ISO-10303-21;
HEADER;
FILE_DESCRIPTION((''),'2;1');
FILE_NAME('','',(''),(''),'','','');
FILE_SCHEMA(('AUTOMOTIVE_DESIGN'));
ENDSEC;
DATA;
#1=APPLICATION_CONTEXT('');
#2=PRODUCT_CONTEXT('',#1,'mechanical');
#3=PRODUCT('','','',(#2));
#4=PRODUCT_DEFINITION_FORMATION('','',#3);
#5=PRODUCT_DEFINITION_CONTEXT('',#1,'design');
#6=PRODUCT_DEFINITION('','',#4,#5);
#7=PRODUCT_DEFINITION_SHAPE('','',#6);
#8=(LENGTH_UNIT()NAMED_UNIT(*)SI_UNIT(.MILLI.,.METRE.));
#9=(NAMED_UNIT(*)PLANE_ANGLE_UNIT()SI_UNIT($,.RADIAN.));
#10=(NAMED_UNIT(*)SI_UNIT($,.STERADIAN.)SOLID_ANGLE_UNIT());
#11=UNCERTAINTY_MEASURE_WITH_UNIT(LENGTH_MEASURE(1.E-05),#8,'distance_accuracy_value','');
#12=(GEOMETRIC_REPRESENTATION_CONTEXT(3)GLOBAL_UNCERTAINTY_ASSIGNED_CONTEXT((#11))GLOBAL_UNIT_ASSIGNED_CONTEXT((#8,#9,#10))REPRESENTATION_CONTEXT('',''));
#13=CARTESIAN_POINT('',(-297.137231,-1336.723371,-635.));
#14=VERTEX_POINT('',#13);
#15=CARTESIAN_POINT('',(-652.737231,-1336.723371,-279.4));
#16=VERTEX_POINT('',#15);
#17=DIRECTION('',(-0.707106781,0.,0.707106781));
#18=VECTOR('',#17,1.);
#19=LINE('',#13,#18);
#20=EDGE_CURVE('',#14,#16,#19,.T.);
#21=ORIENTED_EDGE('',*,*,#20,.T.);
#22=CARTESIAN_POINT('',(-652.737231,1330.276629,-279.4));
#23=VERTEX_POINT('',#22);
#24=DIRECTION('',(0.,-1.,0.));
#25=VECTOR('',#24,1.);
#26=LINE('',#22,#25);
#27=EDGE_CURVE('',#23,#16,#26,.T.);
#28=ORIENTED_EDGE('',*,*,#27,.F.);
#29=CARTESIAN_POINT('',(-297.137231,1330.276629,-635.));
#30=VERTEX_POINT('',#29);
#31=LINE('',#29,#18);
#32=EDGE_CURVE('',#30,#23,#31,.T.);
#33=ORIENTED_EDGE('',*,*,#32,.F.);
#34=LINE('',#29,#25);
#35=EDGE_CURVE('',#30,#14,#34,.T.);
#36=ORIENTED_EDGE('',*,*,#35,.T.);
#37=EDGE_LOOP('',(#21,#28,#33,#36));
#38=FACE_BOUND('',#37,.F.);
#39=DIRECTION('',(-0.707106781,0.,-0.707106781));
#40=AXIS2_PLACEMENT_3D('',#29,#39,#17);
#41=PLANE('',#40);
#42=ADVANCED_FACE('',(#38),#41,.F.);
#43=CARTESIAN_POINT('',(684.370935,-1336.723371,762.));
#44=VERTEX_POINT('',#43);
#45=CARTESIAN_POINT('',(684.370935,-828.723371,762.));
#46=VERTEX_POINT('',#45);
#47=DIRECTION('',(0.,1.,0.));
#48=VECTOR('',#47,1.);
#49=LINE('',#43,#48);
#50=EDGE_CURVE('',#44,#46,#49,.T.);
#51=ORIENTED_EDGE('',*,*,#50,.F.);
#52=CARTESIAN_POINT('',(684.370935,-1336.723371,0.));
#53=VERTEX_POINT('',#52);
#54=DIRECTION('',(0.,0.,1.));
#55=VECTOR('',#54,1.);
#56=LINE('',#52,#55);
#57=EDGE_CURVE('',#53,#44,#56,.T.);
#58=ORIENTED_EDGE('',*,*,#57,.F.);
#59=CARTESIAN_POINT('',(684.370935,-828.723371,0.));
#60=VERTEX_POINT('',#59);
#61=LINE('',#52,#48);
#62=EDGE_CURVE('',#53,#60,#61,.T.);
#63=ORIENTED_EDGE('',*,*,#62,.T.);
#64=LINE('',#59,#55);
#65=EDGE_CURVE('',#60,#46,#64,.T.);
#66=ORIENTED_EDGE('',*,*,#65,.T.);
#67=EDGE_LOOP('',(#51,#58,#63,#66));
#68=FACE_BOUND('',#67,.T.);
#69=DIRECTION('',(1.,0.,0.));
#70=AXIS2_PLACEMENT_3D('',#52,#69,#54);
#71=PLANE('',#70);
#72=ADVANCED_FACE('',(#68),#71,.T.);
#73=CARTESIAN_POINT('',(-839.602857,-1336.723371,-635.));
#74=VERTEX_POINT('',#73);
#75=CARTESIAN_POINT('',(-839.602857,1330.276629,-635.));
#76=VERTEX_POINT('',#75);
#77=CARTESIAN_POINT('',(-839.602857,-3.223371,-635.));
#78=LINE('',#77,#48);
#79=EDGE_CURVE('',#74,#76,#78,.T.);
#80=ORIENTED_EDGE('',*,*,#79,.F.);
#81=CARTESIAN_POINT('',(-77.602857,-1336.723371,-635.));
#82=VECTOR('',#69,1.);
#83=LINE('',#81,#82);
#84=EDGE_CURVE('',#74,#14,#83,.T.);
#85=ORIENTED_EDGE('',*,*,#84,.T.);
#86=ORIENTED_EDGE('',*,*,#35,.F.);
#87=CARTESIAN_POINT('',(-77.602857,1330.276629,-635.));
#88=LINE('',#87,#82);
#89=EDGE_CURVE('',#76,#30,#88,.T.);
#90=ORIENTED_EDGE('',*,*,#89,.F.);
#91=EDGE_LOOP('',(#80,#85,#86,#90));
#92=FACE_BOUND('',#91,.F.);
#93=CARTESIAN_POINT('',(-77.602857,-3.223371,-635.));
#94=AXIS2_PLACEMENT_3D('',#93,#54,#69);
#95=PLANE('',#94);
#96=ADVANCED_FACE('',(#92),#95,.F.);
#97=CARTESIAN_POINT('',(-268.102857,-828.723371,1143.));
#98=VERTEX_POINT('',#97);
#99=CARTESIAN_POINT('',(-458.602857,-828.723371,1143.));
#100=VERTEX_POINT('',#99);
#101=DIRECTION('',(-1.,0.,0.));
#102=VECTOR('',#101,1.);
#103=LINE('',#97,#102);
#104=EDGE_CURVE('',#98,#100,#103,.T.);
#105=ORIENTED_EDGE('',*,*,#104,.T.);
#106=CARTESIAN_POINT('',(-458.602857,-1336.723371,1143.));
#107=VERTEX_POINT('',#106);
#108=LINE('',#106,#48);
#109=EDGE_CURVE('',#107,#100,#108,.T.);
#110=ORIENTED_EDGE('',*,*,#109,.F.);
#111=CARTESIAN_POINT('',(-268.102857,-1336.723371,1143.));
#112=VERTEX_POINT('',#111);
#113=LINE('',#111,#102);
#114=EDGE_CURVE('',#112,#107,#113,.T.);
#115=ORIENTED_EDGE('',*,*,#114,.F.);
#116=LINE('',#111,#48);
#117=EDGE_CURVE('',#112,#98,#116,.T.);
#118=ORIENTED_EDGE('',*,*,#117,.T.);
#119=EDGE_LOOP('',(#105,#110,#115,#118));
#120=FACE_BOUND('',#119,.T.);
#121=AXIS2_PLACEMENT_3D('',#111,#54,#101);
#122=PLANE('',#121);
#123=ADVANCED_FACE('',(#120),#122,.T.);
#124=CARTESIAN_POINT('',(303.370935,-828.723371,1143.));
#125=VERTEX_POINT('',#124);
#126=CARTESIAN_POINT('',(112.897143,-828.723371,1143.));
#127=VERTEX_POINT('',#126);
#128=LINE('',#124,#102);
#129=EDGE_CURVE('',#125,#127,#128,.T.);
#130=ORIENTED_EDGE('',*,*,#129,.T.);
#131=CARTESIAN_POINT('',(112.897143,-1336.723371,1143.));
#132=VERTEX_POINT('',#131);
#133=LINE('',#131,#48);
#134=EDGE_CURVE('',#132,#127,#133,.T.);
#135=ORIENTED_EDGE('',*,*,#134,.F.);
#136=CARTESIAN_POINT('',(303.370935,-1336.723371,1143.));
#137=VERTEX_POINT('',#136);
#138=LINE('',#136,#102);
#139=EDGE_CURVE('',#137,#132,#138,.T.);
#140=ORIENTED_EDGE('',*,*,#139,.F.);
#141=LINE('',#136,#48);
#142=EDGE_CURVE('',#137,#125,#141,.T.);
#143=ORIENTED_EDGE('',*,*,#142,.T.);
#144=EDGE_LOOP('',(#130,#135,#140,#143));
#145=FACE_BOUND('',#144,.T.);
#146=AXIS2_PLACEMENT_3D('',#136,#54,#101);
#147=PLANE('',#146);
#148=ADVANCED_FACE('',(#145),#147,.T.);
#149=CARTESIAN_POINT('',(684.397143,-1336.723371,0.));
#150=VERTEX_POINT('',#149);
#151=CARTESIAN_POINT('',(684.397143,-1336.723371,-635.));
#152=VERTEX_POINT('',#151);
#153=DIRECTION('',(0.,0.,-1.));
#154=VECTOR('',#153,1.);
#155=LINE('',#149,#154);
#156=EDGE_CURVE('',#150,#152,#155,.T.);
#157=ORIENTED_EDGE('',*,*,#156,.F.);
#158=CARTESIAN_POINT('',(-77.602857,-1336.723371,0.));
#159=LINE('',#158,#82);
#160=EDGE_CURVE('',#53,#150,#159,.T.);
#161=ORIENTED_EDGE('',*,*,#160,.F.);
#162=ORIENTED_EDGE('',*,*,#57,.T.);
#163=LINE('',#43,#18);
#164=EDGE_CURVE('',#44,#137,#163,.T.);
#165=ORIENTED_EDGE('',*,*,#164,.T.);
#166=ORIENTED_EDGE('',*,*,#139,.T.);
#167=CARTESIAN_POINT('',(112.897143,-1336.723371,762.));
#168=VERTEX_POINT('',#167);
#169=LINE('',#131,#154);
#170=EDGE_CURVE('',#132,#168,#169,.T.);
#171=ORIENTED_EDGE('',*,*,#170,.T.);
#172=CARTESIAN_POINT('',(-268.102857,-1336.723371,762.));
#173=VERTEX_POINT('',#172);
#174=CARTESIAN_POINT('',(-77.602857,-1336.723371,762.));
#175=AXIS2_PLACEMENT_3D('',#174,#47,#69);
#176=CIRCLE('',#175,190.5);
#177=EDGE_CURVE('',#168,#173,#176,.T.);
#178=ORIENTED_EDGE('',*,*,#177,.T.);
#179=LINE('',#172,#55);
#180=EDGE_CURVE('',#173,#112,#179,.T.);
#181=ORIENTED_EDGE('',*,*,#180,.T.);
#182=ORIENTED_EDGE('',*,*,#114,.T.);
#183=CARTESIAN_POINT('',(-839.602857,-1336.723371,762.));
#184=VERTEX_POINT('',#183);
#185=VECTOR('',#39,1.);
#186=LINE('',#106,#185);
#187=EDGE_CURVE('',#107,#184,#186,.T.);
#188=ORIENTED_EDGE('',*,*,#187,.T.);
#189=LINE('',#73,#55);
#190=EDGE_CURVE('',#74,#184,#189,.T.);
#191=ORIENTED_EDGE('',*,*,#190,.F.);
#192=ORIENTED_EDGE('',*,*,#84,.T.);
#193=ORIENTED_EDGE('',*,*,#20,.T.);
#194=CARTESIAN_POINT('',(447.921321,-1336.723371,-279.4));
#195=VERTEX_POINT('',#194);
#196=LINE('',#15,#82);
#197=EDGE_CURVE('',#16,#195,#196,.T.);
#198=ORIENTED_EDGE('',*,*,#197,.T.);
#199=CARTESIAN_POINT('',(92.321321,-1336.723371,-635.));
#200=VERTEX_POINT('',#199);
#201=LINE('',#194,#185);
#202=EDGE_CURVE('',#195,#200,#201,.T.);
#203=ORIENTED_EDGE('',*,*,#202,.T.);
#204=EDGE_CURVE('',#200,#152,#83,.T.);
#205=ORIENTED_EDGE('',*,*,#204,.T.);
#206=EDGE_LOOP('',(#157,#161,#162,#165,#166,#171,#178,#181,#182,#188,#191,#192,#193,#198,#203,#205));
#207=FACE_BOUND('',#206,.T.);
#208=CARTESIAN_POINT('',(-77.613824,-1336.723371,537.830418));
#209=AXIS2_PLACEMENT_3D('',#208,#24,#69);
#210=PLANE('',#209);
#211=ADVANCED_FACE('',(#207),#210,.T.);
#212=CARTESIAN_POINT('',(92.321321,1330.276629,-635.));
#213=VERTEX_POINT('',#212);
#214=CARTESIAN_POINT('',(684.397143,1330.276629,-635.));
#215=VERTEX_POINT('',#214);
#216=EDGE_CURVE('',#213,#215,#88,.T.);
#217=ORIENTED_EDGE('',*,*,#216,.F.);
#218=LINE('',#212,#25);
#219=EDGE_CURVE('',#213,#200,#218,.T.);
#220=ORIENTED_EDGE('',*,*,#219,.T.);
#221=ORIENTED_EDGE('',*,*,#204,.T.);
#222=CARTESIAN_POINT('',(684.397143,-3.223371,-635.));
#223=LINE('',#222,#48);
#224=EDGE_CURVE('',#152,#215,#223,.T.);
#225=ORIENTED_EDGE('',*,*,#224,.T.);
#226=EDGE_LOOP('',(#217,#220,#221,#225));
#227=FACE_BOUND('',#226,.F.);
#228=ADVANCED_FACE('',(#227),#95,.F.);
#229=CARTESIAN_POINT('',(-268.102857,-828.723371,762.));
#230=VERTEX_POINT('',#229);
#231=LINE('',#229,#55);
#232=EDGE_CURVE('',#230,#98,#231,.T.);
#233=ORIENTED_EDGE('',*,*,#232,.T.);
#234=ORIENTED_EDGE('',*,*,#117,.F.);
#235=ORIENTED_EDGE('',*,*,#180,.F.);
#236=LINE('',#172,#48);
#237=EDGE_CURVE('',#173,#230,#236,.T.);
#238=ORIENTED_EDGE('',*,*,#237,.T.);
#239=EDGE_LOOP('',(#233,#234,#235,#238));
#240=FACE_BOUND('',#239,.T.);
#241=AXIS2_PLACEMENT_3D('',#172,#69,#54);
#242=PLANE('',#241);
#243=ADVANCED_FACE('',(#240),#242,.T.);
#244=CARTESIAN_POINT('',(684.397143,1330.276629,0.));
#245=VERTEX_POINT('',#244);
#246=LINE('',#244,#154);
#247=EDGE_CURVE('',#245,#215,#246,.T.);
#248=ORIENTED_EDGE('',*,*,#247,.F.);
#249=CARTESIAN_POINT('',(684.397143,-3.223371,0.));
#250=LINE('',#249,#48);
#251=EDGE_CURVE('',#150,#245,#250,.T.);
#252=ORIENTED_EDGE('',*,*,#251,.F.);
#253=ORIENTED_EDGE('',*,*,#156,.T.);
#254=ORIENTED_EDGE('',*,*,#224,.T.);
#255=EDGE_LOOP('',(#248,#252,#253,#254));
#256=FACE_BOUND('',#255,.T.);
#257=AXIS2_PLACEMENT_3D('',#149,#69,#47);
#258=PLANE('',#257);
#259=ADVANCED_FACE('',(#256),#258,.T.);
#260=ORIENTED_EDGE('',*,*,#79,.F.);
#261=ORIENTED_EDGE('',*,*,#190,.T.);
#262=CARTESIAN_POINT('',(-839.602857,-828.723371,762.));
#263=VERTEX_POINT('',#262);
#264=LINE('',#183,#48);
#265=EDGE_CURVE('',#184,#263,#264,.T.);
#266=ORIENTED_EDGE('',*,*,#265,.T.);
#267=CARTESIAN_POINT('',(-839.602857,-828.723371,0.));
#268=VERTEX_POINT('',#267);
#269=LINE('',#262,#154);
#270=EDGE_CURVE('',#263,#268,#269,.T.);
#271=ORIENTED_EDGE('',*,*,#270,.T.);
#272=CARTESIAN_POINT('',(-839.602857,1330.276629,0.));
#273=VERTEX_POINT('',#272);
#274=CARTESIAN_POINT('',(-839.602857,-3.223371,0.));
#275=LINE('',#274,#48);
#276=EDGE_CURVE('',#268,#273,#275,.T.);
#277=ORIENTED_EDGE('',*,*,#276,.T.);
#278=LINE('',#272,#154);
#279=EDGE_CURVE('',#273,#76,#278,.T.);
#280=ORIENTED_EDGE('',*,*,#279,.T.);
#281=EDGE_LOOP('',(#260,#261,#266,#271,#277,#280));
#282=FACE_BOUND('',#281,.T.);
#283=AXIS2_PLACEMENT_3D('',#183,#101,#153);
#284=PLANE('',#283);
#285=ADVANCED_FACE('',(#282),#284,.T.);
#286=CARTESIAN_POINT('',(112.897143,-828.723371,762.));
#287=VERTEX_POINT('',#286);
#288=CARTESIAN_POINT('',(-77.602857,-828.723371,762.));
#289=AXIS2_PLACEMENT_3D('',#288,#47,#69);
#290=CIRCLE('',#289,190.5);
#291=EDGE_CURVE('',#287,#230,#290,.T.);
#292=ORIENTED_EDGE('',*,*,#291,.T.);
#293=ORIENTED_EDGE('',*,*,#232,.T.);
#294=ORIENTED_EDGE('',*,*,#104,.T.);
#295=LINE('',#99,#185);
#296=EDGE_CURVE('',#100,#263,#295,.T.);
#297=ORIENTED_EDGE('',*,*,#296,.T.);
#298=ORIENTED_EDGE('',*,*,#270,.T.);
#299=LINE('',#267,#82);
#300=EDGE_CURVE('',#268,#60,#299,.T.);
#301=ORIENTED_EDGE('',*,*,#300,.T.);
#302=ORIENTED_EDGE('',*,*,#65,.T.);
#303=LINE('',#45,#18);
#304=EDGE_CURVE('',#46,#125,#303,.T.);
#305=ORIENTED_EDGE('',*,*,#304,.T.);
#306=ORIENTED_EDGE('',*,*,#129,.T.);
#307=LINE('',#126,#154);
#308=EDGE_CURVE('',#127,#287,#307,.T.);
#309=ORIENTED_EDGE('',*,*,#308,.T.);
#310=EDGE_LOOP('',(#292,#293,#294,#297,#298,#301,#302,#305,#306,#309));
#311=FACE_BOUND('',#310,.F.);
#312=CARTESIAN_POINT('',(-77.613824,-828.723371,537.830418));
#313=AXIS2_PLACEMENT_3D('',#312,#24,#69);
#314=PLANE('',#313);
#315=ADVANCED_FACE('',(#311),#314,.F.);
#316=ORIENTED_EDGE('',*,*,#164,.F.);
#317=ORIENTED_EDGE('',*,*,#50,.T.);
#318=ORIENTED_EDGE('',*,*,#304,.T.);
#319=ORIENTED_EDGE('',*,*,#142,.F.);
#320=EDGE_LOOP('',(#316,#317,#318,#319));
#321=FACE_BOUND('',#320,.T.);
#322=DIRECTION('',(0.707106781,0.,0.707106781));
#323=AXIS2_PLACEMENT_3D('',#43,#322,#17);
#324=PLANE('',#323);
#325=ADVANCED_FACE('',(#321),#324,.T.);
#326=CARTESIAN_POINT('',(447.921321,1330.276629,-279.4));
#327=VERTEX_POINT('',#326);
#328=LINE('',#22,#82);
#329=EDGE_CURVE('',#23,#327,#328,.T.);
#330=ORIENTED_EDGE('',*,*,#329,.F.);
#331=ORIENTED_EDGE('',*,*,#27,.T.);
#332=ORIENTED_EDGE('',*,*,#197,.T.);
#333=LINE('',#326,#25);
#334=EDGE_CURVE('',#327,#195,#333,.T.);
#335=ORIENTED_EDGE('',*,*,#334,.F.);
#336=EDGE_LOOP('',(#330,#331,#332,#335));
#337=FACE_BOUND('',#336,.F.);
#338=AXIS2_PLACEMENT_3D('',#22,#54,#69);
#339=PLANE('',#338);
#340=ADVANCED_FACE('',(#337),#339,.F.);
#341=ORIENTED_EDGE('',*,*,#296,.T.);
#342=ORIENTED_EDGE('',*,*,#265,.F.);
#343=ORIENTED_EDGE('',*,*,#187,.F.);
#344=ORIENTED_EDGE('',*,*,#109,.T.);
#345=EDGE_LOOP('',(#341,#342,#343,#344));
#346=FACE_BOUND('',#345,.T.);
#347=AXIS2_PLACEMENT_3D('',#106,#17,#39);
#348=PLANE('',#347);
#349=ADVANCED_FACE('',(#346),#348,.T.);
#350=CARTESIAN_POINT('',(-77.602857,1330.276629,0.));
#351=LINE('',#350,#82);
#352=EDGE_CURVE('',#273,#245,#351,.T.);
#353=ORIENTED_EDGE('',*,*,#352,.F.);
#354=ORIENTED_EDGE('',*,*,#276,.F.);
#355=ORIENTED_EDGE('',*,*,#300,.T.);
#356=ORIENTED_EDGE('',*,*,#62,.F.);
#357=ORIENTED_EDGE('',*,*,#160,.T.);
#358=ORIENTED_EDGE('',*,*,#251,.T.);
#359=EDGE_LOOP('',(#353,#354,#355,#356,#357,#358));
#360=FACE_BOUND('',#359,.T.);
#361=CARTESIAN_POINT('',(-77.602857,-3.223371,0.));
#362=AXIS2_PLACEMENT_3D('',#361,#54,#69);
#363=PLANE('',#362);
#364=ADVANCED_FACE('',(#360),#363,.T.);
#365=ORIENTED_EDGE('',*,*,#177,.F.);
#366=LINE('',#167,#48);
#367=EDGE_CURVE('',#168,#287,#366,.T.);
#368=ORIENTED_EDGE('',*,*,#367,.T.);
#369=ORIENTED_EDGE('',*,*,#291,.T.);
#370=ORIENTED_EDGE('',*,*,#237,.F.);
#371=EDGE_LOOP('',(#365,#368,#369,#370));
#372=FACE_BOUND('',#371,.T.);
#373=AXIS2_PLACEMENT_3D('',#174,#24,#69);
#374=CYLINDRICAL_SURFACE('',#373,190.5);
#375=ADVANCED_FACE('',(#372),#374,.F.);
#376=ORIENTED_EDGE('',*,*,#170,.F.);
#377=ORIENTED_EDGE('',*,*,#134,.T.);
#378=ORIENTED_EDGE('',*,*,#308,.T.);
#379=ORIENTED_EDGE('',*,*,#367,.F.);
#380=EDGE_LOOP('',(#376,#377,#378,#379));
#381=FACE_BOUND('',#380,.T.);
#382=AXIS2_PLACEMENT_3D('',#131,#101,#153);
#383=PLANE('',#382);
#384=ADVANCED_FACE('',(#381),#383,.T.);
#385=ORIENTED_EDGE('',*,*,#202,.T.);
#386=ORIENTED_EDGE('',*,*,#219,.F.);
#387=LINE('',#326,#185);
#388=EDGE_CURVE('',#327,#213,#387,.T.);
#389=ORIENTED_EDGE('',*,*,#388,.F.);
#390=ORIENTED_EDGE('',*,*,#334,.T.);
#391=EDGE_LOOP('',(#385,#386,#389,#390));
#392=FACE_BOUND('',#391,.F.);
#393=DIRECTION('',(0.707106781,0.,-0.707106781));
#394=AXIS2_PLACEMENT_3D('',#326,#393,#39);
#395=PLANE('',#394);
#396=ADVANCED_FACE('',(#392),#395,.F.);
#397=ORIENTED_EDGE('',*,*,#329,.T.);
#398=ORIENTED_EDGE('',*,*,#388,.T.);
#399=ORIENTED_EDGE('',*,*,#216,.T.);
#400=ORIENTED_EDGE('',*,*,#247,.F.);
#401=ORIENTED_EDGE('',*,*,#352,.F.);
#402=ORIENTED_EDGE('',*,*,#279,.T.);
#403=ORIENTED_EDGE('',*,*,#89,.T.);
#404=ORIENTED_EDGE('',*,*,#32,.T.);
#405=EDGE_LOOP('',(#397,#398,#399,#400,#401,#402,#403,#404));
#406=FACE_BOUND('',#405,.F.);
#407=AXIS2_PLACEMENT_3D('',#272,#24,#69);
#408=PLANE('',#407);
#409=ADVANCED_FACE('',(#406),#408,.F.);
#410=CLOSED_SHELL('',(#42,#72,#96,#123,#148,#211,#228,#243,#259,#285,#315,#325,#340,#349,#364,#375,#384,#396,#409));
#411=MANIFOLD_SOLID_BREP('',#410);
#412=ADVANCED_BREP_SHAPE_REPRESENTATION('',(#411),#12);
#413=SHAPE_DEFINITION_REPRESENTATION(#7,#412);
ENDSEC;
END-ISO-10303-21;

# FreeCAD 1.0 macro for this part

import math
import FreeCAD as App
import Part
import Sketcher
Q = App.Units.Quantity

doc = App.newDocument("Part")
body = doc.addObject("PartDesign::Body", "Body")

# Sketch on XY plane
sketch1 = body.newObject("Sketcher::SketchObject", "Sketch")
sketch1.AttachmentSupport = (doc.getObject("XY_Plane"), [""])
sketch1.MapMode = "FlatFace"
sketch1.addGeometry([
    Part.LineSegment(App.Vector(-839.602857, 1330.276629, 0), App.Vector(-839.602857, -1336.723371, 0)),
    Part.LineSegment(App.Vector(-839.602857, -1336.723371, 0), App.Vector(684.397143, -1336.723371, 0)),
    Part.LineSegment(App.Vector(684.397143, -1336.723371, 0), App.Vector(684.397143, 1330.276629, 0)),
    Part.LineSegment(App.Vector(684.397143, 1330.276629, 0), App.Vector(-839.602857, 1330.276629, 0)),
], False)
sketch1.addConstraint([
    Sketcher.Constraint("Coincident", 0, 2, 1, 1),
    Sketcher.Constraint("Coincident", 1, 2, 2, 1),
    Sketcher.Constraint("Coincident", 2, 2, 3, 1),
    Sketcher.Constraint("Coincident", 3, 2, 0, 1),
    Sketcher.Constraint("Vertical", 0),
    Sketcher.Constraint("Horizontal", 1),
    Sketcher.Constraint("Vertical", 2),
    Sketcher.Constraint("Horizontal", 3),
    Sketcher.Constraint("DistanceX", 1, 1, 1, 2, Q("60 in")),
    Sketcher.Constraint("DistanceY", 0, 2, 0, 1, Q("105 in")),
    Sketcher.Constraint("DistanceY", 0, 2, -1, 1, Q("1336.723371 mm")),
    Sketcher.Constraint("DistanceX", 0, 2, -1, 1, Q("839.602857 mm")),
])
pad1 = body.newObject("PartDesign::Pad", "Pad")
pad1.Profile = sketch1
pad1.Length = Q("25 in")
pad1.Reversed = True

# Sketch on XZ plane
sketch2 = body.newObject("Sketcher::SketchObject", "Sketch001")
sketch2.AttachmentSupport = (doc.getObject("XZ_Plane"), [""])
sketch2.MapMode = "FlatFace"
sketch2.AttachmentOffset = App.Placement(App.Vector(0, 0, 1336.723371), App.Rotation())
sketch2.addGeometry([
    Part.LineSegment(App.Vector(-839.602857, 762, 0), App.Vector(-839.602857, 0, 0)),  # 0
    Part.LineSegment(App.Vector(-839.602857, 0, 0), App.Vector(684.370935, 0, 0)),  # 1
    Part.LineSegment(App.Vector(684.370935, 0, 0), App.Vector(684.370935, 762, 0)),  # 2
    Part.LineSegment(App.Vector(684.370935, 762, 0), App.Vector(303.370935, 1143, 0)),  # 3
    Part.LineSegment(App.Vector(303.370935, 1143, 0), App.Vector(112.897143, 1143, 0)),  # 4
    Part.LineSegment(App.Vector(112.897143, 1143, 0), App.Vector(112.897143, 762, 0)),  # 5
    Part.ArcOfCircle(Part.Circle(App.Vector(-77.602857, 762, 0), App.Vector(0, 0, 1), 190.5), math.radians(180), math.radians(360)),  # 6
    Part.LineSegment(App.Vector(-268.102857, 762, 0), App.Vector(-268.102857, 1143, 0)),  # 7
    Part.LineSegment(App.Vector(-268.102857, 1143, 0), App.Vector(-458.602857, 1143, 0)),  # 8
    Part.LineSegment(App.Vector(-458.602857, 1143, 0), App.Vector(-839.602857, 762, 0)),  # 9
], False)
sketch2.addConstraint([
    Sketcher.Constraint("Coincident", 0, 2, 1, 1),
    Sketcher.Constraint("Coincident", 1, 2, 2, 1),
    Sketcher.Constraint("Coincident", 2, 2, 3, 1),
    Sketcher.Constraint("Coincident", 3, 2, 4, 1),
    Sketcher.Constraint("Coincident", 4, 2, 5, 1),
    Sketcher.Constraint("Tangent", 5, 2, 6, 2),
    Sketcher.Constraint("Tangent", 6, 1, 7, 1),
    Sketcher.Constraint("Coincident", 7, 2, 8, 1),
    Sketcher.Constraint("Coincident", 8, 2, 9, 1),
    Sketcher.Constraint("Coincident", 9, 2, 0, 1),
    Sketcher.Constraint("Vertical", 0),
    Sketcher.Constraint("Horizontal", 1),
    Sketcher.Constraint("Vertical", 2),
    Sketcher.Constraint("Horizontal", 4),
    Sketcher.Constraint("Vertical", 5),
    Sketcher.Constraint("Vertical", 7),
    Sketcher.Constraint("Horizontal", 8),
    Sketcher.Constraint("PointOnObject", 0, 2, -1),
    Sketcher.Constraint("Perpendicular", 3, 9),
    Sketcher.Constraint("Horizontal", 6, 3, 2, 2),
    Sketcher.Constraint("Horizontal", 4, 2, 7, 2),
    Sketcher.Constraint("Horizontal", 6, 1, 9, 2),
    Sketcher.Constraint("Equal", 3, 9),
    Sketcher.Constraint("Radius", 6, Q("7.5 in")),
    Sketcher.Constraint("DistanceY", 0, 2, 0, 1, Q("30 in")),
    Sketcher.Constraint("DistanceY", 5, 2, 5, 1, Q("15 in")),
    Sketcher.Constraint("DistanceX", 8, 2, 8, 1, Q("7.5 in")),
    Sketcher.Constraint("DistanceX", 1, 1, 1, 2, Q("1523.973792 mm")),
    Sketcher.Constraint("DistanceX", 6, 3, -1, 1, Q("77.602857 mm")),
])
pad2 = body.newObject("PartDesign::Pad", "Pad001")
pad2.Profile = sketch2
pad2.Length = Q("20 in")
pad2.Reversed = True

# Sketch on XZ plane
sketch3 = body.newObject("Sketcher::SketchObject", "Sketch002")
sketch3.AttachmentSupport = (doc.getObject("XZ_Plane"), [""])
sketch3.MapMode = "FlatFace"
sketch3.AttachmentOffset = App.Placement(App.Vector(0, 0, -1330.276629), App.Rotation())
sketch3.addGeometry([
    Part.LineSegment(App.Vector(447.921321, -279.4, 0), App.Vector(92.321321, -635, 0)),  # 0
    Part.LineSegment(App.Vector(92.321321, -635, 0), App.Vector(92.321321, -854.684353, 0)),  # 1
    Part.LineSegment(App.Vector(92.321321, -854.684353, 0), App.Vector(-309.403628, -854.684353, 0)),  # 2
    Part.LineSegment(App.Vector(-309.403628, -854.684353, 0), App.Vector(-297.137231, -635, 0)),  # 3
    Part.LineSegment(App.Vector(-297.137231, -635, 0), App.Vector(-652.737231, -279.4, 0)),  # 4
    Part.LineSegment(App.Vector(-652.737231, -279.4, 0), App.Vector(447.921321, -279.4, 0)),  # 5
], False)
sketch3.addConstraint([
    Sketcher.Constraint("Coincident", 0, 2, 1, 1),
    Sketcher.Constraint("Coincident", 1, 2, 2, 1),
    Sketcher.Constraint("Coincident", 2, 2, 3, 1),
    Sketcher.Constraint("Coincident", 3, 2, 4, 1),
    Sketcher.Constraint("Coincident", 4, 2, 5, 1),
    Sketcher.Constraint("Coincident", 5, 2, 0, 1),
    Sketcher.Constraint("Vertical", 1),
    Sketcher.Constraint("Horizontal", 2),
    Sketcher.Constraint("Horizontal", 5),
    Sketcher.Constraint("Perpendicular", 0, 4),
    Sketcher.Constraint("Horizontal", 0, 2, 3, 2),
    Sketcher.Constraint("Equal", 0, 4),
    Sketcher.Constraint("DistanceY", 0, 2, -1, 1, Q("25 in")),
    Sketcher.Constraint("DistanceY", 4, 2, -1, 1, Q("11 in")),
    Sketcher.Constraint("DistanceX", 2, 2, 2, 1, Q("401.724949 mm")),
    Sketcher.Constraint("DistanceX", 5, 1, 5, 2, Q("1100.658552 mm")),
    Sketcher.Constraint("DistanceY", 1, 2, 1, 1, Q("219.684353 mm")),
    Sketcher.Constraint("DistanceX", -1, 1, 0, 2, Q("92.321321 mm")),
])
pocket1 = body.newObject("PartDesign::Pocket", "Pocket")
pocket1.Profile = sketch3
pocket1.Length = Q("105 in")
pocket1.Reversed = True

doc.recompute()
